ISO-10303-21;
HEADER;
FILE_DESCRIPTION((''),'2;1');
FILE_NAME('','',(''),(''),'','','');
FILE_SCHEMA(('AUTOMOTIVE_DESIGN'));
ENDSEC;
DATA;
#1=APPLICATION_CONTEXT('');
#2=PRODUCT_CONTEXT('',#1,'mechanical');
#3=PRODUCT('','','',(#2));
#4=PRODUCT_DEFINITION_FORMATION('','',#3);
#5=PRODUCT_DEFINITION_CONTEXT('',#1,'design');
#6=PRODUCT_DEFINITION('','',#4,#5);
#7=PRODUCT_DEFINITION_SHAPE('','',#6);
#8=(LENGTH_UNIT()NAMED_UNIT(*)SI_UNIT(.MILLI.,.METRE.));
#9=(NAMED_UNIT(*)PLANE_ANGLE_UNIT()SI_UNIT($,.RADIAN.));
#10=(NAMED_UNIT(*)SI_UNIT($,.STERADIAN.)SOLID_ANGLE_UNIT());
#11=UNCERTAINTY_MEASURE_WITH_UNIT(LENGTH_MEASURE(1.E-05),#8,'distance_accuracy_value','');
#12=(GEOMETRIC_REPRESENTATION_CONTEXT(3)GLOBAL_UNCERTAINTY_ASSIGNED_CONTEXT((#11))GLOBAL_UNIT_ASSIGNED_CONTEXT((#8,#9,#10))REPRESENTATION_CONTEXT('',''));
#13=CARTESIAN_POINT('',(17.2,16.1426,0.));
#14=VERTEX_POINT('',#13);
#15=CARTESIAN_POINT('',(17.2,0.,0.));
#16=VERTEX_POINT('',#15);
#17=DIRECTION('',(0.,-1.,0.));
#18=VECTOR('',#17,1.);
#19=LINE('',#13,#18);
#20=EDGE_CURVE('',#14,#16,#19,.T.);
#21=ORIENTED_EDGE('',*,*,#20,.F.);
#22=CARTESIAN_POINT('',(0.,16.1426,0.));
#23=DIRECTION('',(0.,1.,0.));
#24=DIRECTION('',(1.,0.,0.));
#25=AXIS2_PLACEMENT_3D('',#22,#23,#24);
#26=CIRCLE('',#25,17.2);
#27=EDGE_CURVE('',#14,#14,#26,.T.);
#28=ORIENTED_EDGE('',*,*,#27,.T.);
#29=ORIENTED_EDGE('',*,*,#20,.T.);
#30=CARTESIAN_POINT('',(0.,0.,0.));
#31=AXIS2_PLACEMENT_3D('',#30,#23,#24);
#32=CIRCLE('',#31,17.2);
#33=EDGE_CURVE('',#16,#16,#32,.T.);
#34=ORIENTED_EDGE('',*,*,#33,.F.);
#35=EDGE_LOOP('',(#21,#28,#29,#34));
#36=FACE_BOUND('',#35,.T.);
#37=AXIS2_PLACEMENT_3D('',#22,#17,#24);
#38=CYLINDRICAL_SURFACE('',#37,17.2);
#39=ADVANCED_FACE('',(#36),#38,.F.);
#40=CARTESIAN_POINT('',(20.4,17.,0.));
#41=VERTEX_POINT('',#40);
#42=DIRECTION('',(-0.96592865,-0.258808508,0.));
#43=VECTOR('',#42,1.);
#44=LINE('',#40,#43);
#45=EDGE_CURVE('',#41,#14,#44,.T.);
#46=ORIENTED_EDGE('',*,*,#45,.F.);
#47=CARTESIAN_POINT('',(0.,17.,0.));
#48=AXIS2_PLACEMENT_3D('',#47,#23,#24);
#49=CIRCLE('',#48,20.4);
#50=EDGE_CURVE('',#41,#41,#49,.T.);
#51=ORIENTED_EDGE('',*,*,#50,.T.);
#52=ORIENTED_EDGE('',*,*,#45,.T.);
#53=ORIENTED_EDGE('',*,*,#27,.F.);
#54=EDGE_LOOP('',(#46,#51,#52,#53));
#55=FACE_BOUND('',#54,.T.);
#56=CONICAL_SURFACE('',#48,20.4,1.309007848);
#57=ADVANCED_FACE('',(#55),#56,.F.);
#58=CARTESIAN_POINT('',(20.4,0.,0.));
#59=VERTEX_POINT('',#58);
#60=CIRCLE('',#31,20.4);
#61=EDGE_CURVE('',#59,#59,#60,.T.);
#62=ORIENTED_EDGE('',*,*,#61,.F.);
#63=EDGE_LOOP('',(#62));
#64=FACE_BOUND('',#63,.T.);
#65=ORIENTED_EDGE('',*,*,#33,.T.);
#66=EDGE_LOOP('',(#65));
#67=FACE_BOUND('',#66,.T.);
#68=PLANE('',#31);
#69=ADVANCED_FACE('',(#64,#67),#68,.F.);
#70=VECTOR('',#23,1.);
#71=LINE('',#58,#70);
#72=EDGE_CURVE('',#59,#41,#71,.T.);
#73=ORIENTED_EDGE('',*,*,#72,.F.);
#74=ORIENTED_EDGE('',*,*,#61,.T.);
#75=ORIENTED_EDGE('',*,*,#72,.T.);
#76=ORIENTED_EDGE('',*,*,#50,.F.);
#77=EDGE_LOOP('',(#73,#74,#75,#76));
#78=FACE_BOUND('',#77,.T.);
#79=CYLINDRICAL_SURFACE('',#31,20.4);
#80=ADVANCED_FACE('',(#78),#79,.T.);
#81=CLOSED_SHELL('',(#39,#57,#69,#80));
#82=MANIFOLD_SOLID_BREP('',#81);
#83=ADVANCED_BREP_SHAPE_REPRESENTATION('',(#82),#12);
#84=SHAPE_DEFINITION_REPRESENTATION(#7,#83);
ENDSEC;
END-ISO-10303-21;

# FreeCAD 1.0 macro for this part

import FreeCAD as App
import Part
import Sketcher
from FreeCAD import Vector
Q = App.Units.Quantity


def add_polygon(sketch, points):
    """Adds a closed chain of lines whose ends are joined by coincident constraints."""
    first, n = sketch.GeometryCount, len(points)
    for a, b in zip(points, points[1:] + points[:1]):
        sketch.addGeometry(Part.LineSegment(App.Vector(*a, 0), App.Vector(*b, 0)), False)
    for i in range(n):
        sketch.addConstraint(Sketcher.Constraint("Coincident", first + i, 2, first + (i + 1) % n, 1))

doc = App.newDocument("Part")
body = doc.addObject("PartDesign::Body", "Body")

# Sketch on XY plane
sketch1 = body.newObject("Sketcher::SketchObject", "Sketch")
sketch1.AttachmentSupport = (doc.getObject("XY_Plane"), [""])
sketch1.MapMode = "FlatFace"
add_polygon(sketch1, [(17.2, 0), (20.4, 0), (20.4, 17), (17.2, 16.1426)])  # lines 0-3
sketch1.addConstraint(Sketcher.Constraint("Horizontal", 0))
sketch1.addConstraint(Sketcher.Constraint("Vertical", 1))
sketch1.addConstraint(Sketcher.Constraint("Vertical", 3))
sketch1.addConstraint(Sketcher.Constraint("PointOnObject", 0, 2, -1))
sketch1.addConstraint(Sketcher.Constraint("DistanceY", 1, 1, 1, 2, Q("17 mm")))
sketch1.addConstraint(Sketcher.Constraint("Angle", 2, Q("-165.0006 deg")))
sketch1.addConstraint(Sketcher.Constraint("DistanceX", 0, 1, 0, 2, Q("3.2 mm")))
sketch1.addConstraint(Sketcher.Constraint("DistanceX", -1, 1, 0, 2, Q("20.4 mm")))
revolution = body.newObject("PartDesign::Revolution", "Revolution")
revolution.Profile = sketch1
revolution.ReferenceAxis = (sketch1, ["V_Axis"])
revolution.Angle = 360

doc.recompute()
